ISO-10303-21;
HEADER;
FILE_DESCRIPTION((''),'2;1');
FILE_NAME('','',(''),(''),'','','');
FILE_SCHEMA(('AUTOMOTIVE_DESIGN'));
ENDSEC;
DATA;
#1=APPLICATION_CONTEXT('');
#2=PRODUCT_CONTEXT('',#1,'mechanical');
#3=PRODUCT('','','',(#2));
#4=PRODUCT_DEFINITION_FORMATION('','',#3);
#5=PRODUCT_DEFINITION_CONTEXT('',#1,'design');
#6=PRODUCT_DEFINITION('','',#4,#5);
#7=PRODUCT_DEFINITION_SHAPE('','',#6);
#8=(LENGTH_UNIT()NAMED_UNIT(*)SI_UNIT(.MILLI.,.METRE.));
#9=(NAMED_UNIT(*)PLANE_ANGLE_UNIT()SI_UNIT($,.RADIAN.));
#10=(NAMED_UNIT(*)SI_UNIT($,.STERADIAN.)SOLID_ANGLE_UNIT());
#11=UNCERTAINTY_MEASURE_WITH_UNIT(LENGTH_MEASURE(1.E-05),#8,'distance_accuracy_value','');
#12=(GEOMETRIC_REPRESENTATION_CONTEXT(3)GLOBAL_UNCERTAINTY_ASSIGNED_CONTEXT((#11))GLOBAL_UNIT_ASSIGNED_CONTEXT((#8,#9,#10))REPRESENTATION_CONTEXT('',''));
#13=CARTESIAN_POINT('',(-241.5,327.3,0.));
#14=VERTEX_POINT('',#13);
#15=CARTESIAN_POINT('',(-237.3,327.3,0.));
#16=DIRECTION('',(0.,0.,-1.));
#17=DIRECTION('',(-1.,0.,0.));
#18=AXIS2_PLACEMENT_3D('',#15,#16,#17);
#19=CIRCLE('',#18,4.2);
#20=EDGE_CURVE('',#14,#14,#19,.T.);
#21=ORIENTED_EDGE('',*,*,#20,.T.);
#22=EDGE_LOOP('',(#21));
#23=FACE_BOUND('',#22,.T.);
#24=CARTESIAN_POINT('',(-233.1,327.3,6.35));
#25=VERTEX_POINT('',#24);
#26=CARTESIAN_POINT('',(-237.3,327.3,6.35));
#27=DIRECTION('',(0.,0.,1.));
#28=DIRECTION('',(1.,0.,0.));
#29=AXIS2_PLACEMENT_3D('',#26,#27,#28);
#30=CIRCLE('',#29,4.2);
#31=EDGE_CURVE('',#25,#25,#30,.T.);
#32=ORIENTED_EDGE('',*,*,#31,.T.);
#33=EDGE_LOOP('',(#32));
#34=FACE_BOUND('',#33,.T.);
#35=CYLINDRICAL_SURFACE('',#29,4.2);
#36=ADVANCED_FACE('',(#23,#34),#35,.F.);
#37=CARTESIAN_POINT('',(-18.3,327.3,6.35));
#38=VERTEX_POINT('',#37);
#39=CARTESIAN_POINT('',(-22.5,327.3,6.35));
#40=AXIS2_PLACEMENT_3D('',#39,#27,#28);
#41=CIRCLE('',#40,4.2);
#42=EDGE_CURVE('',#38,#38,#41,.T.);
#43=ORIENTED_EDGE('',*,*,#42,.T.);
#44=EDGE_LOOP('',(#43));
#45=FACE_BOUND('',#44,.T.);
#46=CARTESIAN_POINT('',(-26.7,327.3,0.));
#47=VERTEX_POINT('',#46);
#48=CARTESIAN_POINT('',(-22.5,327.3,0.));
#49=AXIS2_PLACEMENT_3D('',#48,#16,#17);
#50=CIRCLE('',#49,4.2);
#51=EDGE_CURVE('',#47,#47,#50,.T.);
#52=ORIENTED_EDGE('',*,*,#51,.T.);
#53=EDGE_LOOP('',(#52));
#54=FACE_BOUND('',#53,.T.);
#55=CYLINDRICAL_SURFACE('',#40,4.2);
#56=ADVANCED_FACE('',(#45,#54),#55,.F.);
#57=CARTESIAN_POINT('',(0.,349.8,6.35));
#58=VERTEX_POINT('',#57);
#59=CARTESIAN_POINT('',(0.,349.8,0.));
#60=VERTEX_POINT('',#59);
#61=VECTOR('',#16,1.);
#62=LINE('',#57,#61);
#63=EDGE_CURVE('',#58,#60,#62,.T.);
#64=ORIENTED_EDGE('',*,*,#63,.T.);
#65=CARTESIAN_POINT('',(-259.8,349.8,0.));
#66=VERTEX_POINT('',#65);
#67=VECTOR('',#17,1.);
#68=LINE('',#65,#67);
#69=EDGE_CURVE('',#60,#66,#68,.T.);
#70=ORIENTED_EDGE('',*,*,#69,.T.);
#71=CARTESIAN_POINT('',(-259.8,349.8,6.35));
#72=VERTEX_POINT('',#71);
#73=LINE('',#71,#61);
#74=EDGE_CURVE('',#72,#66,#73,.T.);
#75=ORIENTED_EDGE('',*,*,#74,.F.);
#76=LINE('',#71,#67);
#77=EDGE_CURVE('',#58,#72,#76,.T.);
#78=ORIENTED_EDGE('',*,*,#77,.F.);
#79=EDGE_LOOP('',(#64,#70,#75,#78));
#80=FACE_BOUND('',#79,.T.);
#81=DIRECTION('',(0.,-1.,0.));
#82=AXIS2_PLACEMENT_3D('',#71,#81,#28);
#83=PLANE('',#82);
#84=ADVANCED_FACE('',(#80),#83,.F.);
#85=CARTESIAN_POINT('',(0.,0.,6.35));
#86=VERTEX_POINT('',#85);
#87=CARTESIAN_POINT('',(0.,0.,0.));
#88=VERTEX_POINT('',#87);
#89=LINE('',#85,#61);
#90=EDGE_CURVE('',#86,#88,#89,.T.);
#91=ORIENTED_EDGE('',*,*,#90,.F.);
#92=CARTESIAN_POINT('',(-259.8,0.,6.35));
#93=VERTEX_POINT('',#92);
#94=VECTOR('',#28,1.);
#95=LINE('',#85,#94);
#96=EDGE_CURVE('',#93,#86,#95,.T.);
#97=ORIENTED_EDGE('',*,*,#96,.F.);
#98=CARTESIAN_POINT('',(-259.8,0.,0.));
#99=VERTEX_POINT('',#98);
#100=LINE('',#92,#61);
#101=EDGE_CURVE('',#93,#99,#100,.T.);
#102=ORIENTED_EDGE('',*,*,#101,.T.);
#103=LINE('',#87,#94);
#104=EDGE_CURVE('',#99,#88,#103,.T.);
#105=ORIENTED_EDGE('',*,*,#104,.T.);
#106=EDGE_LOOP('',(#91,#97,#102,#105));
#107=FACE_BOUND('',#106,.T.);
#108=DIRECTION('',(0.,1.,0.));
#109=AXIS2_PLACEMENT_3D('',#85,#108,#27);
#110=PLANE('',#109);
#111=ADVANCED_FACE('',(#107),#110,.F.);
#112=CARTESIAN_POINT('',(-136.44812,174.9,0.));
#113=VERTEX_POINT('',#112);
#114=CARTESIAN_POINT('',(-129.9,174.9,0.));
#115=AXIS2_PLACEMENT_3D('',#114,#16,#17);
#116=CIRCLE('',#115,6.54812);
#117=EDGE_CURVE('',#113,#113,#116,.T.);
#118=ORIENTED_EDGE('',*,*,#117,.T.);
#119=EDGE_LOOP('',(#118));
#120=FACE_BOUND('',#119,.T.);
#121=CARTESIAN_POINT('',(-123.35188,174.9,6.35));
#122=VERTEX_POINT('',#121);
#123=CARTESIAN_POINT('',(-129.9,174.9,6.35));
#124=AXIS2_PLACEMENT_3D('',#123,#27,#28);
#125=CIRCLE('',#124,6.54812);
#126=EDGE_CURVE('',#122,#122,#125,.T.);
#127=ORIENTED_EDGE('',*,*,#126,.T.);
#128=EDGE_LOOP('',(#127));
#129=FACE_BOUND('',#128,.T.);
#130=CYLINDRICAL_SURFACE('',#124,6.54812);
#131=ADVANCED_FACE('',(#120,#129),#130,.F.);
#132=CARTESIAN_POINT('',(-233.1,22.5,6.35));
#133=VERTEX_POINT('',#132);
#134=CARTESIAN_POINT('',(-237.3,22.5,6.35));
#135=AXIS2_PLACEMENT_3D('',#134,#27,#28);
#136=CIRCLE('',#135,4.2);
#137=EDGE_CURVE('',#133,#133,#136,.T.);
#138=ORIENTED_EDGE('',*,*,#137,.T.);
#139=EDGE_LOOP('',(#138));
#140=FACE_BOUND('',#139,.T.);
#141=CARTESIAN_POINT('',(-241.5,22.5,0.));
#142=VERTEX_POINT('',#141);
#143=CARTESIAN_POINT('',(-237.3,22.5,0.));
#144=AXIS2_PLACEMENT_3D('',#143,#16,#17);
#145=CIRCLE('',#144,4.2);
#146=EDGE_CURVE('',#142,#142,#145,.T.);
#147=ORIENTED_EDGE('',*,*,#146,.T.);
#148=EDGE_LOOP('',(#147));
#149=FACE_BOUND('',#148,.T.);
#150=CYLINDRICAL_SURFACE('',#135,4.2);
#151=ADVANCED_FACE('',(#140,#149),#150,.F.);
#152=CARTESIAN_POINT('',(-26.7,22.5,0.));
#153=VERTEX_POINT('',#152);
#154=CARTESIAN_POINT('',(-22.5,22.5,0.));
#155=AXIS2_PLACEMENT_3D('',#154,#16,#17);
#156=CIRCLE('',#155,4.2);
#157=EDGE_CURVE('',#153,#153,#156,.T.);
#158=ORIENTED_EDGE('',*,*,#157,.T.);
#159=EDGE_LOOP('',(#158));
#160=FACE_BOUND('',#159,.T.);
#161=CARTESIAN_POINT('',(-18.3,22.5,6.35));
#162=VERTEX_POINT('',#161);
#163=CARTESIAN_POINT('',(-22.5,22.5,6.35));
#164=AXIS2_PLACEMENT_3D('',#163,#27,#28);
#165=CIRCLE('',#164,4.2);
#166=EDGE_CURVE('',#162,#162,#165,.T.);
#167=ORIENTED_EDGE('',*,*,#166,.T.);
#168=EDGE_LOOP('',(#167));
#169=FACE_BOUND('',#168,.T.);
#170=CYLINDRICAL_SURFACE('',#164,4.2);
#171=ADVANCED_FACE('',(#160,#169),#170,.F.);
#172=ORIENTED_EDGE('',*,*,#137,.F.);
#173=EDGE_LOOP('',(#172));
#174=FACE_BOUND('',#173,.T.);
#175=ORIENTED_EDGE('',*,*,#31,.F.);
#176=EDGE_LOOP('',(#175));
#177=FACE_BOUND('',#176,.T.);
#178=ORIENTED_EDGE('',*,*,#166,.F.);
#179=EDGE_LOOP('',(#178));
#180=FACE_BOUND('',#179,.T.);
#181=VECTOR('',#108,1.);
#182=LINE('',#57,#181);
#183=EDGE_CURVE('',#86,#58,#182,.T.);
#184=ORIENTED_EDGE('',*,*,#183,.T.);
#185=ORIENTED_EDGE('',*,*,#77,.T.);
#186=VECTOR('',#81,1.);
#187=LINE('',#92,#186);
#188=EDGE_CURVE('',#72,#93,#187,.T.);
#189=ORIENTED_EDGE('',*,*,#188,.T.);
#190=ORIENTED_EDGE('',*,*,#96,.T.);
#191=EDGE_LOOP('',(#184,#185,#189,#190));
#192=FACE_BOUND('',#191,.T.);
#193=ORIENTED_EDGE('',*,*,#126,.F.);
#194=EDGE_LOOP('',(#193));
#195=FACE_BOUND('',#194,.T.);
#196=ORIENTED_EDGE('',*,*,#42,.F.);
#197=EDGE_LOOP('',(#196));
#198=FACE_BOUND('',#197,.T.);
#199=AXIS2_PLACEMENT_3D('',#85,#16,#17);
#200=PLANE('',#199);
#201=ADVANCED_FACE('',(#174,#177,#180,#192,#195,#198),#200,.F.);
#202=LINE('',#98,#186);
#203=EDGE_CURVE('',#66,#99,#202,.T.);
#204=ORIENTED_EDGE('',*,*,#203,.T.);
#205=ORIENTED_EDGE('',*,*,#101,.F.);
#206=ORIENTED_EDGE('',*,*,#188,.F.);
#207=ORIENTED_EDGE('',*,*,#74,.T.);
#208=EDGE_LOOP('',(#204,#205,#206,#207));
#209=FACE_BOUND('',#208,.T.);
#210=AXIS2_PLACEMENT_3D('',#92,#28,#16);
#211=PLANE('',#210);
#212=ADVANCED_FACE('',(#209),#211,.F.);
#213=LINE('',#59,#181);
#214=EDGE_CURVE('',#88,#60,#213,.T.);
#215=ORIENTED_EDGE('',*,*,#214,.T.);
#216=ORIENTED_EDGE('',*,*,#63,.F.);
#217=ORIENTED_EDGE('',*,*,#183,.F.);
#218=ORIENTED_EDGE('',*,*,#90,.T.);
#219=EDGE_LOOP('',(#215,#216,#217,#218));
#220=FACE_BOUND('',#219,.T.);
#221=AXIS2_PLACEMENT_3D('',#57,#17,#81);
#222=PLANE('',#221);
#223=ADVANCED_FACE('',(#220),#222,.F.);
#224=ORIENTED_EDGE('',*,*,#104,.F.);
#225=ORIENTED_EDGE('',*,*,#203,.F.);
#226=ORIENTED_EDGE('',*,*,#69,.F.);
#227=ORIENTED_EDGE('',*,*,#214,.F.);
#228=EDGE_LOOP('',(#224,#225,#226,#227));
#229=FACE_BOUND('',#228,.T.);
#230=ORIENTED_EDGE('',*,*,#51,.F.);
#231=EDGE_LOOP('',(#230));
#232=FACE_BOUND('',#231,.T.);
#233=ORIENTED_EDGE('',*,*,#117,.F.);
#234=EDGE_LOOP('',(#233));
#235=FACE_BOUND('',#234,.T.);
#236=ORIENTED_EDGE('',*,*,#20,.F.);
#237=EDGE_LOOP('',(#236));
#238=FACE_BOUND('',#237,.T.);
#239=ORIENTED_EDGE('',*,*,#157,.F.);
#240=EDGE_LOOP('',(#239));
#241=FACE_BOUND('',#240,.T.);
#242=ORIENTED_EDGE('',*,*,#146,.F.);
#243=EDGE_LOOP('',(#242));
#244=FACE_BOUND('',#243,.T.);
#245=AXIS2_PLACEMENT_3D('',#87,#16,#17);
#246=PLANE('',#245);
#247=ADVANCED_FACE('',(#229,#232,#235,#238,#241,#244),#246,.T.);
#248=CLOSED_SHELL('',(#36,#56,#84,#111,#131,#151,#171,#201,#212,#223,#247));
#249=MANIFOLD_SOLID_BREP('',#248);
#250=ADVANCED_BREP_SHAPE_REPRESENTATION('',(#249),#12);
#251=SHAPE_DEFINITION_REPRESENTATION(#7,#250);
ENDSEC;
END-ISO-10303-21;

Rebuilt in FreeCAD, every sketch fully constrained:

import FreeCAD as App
import Part
import Sketcher

V = App.Vector


def add_polygon(sketch, points):
    """Adds a closed chain of lines whose ends are joined by coincident constraints."""
    first, n = sketch.GeometryCount, len(points)
    for a, b in zip(points, points[1:] + points[:1]):
        sketch.addGeometry(Part.LineSegment(App.Vector(*a, 0), App.Vector(*b, 0)), False)
    for i in range(n):
        sketch.addConstraint(Sketcher.Constraint("Coincident", first + i, 2, first + (i + 1) % n, 1))

doc = App.newDocument("Part")
body = doc.addObject("PartDesign::Body", "Body")

# Sketch on XY plane
sketch1 = body.newObject("Sketcher::SketchObject", "Sketch")
sketch1.AttachmentSupport = (doc.getObject("XY_Plane"), [""])
sketch1.MapMode = "FlatFace"
add_polygon(sketch1, [(-259.8, 349.8), (-259.8, 0), (0, 0), (0, 349.8)])  # lines 0-3
sketch1.addConstraint(Sketcher.Constraint("Vertical", 0))
sketch1.addConstraint(Sketcher.Constraint("Horizontal", 1))
sketch1.addConstraint(Sketcher.Constraint("Vertical", 2))
sketch1.addConstraint(Sketcher.Constraint("Horizontal", 3))
sketch1.addConstraint(Sketcher.Constraint("Coincident", 1, 2, -1, 1))
sketch1.addConstraint(Sketcher.Constraint("DistanceX", 1, 1, 1, 2, 259.8))
sketch1.addConstraint(Sketcher.Constraint("DistanceY", 0, 2, 0, 1, 349.8))
pad1 = body.newObject("PartDesign::Pad", "Pad")
pad1.Profile = sketch1
pad1.Length = 6.35

# Sketch on XY plane
sketch2 = body.newObject("Sketcher::SketchObject", "Sketch001")
sketch2.AttachmentSupport = (doc.getObject("XY_Plane"), [""])
sketch2.MapMode = "FlatFace"
sketch2.AttachmentOffset = App.Placement(V(0, 0, 6.35), App.Rotation())
sketch2.addGeometry(Part.Circle(V(-129.9, 174.9, 0), V(0, 0, 1), 6.54812), False)
sketch2.addConstraint(Sketcher.Constraint("DistanceX", 0, 3, -1, 1, 129.9))
sketch2.addConstraint(Sketcher.Constraint("DistanceY", -1, 1, 0, 3, 174.9))
sketch2.addConstraint(Sketcher.Constraint("Diameter", 0, 13.09624))
doc.recompute()
hole = body.newObject("PartDesign::Hole", "Hole")
hole.Profile = sketch2
hole.ThreadType = "None"
hole.Diameter = 13.09624
hole.DepthType = "Dimension"
hole.Depth = 22.352
hole.DrillPoint = "Angled"
hole.DrillPointAngle = 118

# Sketch on XY plane
sketch3 = body.newObject("Sketcher::SketchObject", "Sketch002")
sketch3.AttachmentSupport = (doc.getObject("XY_Plane"), [""])
sketch3.MapMode = "FlatFace"
sketch3.AttachmentOffset = App.Placement(V(0, 0, 6.35), App.Rotation())
sketch3.addGeometry(Part.Circle(V(-237.3, 327.3, 0), V(0, 0, 1), 4.2), False)
sketch3.addGeometry(Part.Circle(V(-22.5, 327.3, 0), V(0, 0, 1), 4.2), False)
sketch3.addGeometry(Part.Circle(V(-22.5, 22.5, 0), V(0, 0, 1), 4.2), False)
sketch3.addGeometry(Part.Circle(V(-237.3, 22.5, 0), V(0, 0, 1), 4.2), False)
sketch3.addConstraint(Sketcher.Constraint("Equal", 0, 1))
sketch3.addConstraint(Sketcher.Constraint("Equal", 1, 2))
sketch3.addConstraint(Sketcher.Constraint("Equal", 2, 3))
sketch3.addConstraint(Sketcher.Constraint("Horizontal", 0, 3, 1, 3))
sketch3.addConstraint(Sketcher.Constraint("Horizontal", 2, 3, 3, 3))
sketch3.addConstraint(Sketcher.Constraint("Vertical", 1, 3, 2, 3))
sketch3.addConstraint(Sketcher.Constraint("Vertical", 0, 3, 3, 3))
sketch3.addConstraint(Sketcher.Constraint("Diameter", 0, 8.4))
sketch3.addConstraint(Sketcher.Constraint("DistanceX", 0, 3, -1, 1, 237.3))
sketch3.addConstraint(Sketcher.Constraint("DistanceY", -1, 1, 0, 3, 327.3))
sketch3.addConstraint(Sketcher.Constraint("DistanceX", 1, 3, -1, 1, 22.5))
sketch3.addConstraint(Sketcher.Constraint("DistanceY", -1, 1, 2, 3, 22.5))
doc.recompute()
hole2 = body.newObject("PartDesign::Hole", "Hole001")
hole2.Profile = sketch3
hole2.ThreadType = "None"
hole2.Diameter = 8.4
hole2.DepthType = "Dimension"
hole2.Depth = 76.2
hole2.DrillPoint = "Angled"
hole2.DrillPointAngle = 118

doc.recompute()
